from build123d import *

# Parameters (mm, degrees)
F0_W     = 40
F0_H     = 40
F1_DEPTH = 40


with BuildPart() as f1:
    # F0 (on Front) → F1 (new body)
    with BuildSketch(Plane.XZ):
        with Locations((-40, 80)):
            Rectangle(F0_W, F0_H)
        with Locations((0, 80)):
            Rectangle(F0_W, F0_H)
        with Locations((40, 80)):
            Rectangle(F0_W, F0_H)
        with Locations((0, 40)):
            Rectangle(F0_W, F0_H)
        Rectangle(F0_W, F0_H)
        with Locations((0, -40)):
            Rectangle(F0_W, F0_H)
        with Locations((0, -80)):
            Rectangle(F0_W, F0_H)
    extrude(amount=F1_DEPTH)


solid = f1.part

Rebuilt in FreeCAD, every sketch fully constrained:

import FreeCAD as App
import Part
import Sketcher

V = App.Vector
Q = App.Units.Quantity


def add_polygon(sketch, points):
    """Adds a closed chain of lines whose ends are joined by coincident constraints."""
    first, n = sketch.GeometryCount, len(points)
    for a, b in zip(points, points[1:] + points[:1]):
        sketch.addGeometry(Part.LineSegment(App.Vector(*a, 0), App.Vector(*b, 0)), False)
    for i in range(n):
        sketch.addConstraint(Sketcher.Constraint("Coincident", first + i, 2, first + (i + 1) % n, 1))

doc = App.newDocument("Part")
body = doc.addObject("PartDesign::Body", "Body")

# Sketch on XZ plane
sketch1 = body.newObject("Sketcher::SketchObject", "Sketch")
sketch1.AttachmentSupport = (doc.getObject("XZ_Plane"), [""])
sketch1.MapMode = "FlatFace"
add_polygon(sketch1, [(-60, 100), (-60, 60), (-20, 60), (-20, -100), (20, -100), (20, 60), (60, 60), (60, 100)])  # lines 0-7
sketch1.addConstraint(Sketcher.Constraint("Vertical", 0))
sketch1.addConstraint(Sketcher.Constraint("Horizontal", 1))
sketch1.addConstraint(Sketcher.Constraint("Vertical", 2))
sketch1.addConstraint(Sketcher.Constraint("Horizontal", 3))
sketch1.addConstraint(Sketcher.Constraint("Vertical", 4))
sketch1.addConstraint(Sketcher.Constraint("Horizontal", 5))
sketch1.addConstraint(Sketcher.Constraint("Vertical", 6))
sketch1.addConstraint(Sketcher.Constraint("Horizontal", 7))
sketch1.addConstraint(Sketcher.Constraint("Symmetric", 1, 2, 4, 2, -2))
sketch1.addConstraint(Sketcher.Constraint("Equal", 1, 3))
sketch1.addConstraint(Sketcher.Constraint("Equal", 3, 5))
sketch1.addConstraint(Sketcher.Constraint("Equal", 5, 0))
sketch1.addConstraint(Sketcher.Constraint("DistanceX", 1, 1, 1, 2, Q("40 mm")))
sketch1.addConstraint(Sketcher.Constraint("DistanceY", 2, 2, 2, 1, Q("160 mm")))
sketch1.addConstraint(Sketcher.Constraint("DistanceY", -1, 1, 0, 2, Q("60 mm")))
pad1 = body.newObject("PartDesign::Pad", "Pad")
pad1.Profile = sketch1
pad1.Length = 40

doc.recompute()
